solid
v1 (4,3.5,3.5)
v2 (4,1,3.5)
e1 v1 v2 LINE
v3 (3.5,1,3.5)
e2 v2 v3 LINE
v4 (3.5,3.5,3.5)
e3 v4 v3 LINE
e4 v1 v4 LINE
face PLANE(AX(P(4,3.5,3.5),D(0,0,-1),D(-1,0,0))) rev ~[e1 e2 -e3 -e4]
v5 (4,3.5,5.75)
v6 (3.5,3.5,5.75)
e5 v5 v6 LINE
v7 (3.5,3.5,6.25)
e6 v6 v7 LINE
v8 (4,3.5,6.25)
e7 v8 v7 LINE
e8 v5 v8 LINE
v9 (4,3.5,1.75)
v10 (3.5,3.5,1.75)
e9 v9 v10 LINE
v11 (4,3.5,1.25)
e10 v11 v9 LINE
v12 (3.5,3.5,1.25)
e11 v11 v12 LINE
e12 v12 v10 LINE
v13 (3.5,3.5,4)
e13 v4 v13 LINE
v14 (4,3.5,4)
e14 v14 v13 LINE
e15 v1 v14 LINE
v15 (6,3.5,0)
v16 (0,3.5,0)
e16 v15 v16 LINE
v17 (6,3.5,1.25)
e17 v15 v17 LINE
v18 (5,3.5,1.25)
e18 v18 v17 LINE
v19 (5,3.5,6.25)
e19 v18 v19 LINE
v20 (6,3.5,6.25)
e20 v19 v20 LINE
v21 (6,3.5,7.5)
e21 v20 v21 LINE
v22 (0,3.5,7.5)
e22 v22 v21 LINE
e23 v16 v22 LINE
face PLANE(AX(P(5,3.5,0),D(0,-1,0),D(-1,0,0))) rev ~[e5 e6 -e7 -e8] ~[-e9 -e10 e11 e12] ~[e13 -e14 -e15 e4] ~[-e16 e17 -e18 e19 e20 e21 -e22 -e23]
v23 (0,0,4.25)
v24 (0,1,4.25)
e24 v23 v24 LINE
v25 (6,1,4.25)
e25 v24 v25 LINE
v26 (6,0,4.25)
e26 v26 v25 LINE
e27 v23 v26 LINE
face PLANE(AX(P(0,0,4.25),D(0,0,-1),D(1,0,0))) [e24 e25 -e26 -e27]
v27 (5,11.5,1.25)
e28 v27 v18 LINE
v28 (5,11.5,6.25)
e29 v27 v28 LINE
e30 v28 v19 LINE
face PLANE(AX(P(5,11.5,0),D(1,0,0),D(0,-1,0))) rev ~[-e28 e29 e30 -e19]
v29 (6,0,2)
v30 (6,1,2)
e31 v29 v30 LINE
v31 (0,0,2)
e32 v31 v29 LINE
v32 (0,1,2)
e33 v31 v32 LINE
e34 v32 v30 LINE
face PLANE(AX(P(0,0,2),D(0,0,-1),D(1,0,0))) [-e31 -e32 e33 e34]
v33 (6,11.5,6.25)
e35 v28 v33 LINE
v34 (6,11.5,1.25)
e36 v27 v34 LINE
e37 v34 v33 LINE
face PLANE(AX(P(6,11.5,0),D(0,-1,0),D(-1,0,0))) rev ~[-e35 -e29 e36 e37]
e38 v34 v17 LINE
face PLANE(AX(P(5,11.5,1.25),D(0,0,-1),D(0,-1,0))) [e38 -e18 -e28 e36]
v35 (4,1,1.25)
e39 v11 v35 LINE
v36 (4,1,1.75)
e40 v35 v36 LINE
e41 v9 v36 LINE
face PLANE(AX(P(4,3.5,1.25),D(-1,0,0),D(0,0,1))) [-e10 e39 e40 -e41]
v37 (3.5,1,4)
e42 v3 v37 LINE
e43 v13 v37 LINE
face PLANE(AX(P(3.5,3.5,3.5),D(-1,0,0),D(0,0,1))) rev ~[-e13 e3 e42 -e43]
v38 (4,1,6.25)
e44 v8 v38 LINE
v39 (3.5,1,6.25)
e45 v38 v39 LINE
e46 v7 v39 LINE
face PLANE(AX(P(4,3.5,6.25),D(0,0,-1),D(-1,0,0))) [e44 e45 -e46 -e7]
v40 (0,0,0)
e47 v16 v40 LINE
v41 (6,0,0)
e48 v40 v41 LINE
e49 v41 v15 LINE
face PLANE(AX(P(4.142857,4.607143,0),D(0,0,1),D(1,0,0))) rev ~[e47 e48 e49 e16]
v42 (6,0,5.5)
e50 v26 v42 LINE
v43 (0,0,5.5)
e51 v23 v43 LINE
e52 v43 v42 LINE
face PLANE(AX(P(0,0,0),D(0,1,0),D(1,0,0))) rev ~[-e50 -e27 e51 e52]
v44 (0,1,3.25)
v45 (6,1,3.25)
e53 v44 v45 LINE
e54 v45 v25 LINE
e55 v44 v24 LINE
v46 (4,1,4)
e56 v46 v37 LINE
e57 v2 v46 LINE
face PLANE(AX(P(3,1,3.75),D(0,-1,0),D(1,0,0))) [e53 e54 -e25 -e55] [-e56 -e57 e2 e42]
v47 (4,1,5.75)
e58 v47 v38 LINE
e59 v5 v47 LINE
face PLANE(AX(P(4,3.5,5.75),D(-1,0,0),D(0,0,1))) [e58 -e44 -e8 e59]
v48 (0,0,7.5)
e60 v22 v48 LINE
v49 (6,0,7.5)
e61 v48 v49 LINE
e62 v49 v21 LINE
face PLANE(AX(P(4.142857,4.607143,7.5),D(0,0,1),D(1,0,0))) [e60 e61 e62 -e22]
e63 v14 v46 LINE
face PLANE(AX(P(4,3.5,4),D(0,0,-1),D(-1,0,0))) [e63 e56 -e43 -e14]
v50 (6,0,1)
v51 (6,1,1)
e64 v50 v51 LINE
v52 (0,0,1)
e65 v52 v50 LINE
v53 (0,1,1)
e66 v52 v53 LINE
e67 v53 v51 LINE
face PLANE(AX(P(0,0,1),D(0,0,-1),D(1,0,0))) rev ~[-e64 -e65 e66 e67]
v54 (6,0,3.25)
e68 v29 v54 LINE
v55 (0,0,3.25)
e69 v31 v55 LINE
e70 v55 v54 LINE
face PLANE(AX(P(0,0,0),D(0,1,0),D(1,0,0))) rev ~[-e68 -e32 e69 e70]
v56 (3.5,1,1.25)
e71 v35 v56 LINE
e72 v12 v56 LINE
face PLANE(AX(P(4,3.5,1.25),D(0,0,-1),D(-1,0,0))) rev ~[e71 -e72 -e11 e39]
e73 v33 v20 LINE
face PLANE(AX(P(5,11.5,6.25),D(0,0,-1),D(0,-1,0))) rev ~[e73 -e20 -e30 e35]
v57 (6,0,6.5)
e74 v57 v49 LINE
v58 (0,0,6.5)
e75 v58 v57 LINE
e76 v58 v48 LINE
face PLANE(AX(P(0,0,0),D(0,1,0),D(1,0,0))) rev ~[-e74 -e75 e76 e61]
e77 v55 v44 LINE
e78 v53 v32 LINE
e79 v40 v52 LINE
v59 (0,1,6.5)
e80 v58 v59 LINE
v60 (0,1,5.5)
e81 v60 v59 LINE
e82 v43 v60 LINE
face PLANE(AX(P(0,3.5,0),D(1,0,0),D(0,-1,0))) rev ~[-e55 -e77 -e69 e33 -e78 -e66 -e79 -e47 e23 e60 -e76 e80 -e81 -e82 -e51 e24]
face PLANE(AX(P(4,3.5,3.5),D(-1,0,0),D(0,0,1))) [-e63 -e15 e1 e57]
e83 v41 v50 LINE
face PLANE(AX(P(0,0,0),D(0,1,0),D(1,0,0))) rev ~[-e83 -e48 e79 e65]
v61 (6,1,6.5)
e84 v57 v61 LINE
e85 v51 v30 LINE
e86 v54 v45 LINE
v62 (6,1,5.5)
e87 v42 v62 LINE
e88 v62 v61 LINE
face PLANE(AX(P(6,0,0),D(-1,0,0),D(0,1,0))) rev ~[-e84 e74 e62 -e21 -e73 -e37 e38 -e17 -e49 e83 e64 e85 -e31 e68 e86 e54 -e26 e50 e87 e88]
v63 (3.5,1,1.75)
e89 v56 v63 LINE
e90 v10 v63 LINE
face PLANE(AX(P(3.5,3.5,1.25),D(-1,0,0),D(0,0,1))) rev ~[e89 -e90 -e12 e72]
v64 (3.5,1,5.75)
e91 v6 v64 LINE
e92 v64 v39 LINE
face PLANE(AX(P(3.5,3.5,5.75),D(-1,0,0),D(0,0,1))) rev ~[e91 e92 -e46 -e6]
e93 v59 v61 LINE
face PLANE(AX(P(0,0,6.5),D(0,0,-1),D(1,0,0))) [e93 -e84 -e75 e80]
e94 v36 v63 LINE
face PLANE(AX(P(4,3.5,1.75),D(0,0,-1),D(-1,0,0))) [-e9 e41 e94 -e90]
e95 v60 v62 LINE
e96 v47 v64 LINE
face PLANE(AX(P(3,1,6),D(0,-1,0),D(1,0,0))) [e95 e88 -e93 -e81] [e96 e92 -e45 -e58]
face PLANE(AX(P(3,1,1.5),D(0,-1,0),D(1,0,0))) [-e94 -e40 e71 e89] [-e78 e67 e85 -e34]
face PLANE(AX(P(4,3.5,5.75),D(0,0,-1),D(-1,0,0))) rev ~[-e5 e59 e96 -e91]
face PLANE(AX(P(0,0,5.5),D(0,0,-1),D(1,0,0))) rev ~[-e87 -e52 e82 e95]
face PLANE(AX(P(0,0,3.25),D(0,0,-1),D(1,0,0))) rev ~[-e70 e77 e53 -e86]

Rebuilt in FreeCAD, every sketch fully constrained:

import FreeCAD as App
import Part
import Sketcher

V = App.Vector


def add_polygon(sketch, points):
    """Adds a closed chain of lines whose ends are joined by coincident constraints."""
    first, n = sketch.GeometryCount, len(points)
    for a, b in zip(points, points[1:] + points[:1]):
        sketch.addGeometry(Part.LineSegment(App.Vector(*a, 0), App.Vector(*b, 0)), False)
    for i in range(n):
        sketch.addConstraint(Sketcher.Constraint("Coincident", first + i, 2, first + (i + 1) % n, 1))

doc = App.newDocument("Part")
params = doc.addObject("Spreadsheet::Sheet", "Params")
for row, (alias, value) in enumerate([
    ("sketch1_width", "6 mm"),
    ("sketch1_width2", "1 mm"),
    ("sketch1_height", "8 mm"),
    ("sketch1_height2", "3.5 mm"),
    ("pad1_length", "7.5 mm"),
    ("sketch2_width", "8 mm"),
    ("sketch2_height", "1.25 mm"),
    ("pocket1_length", "25 mm"),
    ("sketch3_width", "0.5 mm"),
    ("pocket2_length", "25 mm"),
    ("sketch4_width", "6 mm"),
    ("sketch4_height", "1 mm"),
    ("pocket3_length", "1 mm"),
], start=1):
    params.set(f"A{row}", alias)
    params.set(f"B{row}", "=" + value)
    params.setAlias(f"B{row}", alias)

body = doc.addObject("PartDesign::Body", "Body")

sketch1 = doc.addObject("Sketcher::SketchObject", "Sketch")
body.addObject(sketch1)
sketch1.AttachmentSupport = (doc.XY_Plane, [""])
sketch1.MapMode = "FlatFace"
add_polygon(sketch1, [(0, 3.5), (0, 0), (6, 0), (6, 11.5), (5, 11.5), (5, 3.5)])
sketch1.addConstraint(Sketcher.Constraint("Vertical", 0))
sketch1.addConstraint(Sketcher.Constraint("Horizontal", 1))
sketch1.addConstraint(Sketcher.Constraint("Vertical", 2))
sketch1.addConstraint(Sketcher.Constraint("Horizontal", 3))
sketch1.addConstraint(Sketcher.Constraint("Vertical", 4))
sketch1.addConstraint(Sketcher.Constraint("Horizontal", 5))
sketch1.addConstraint(Sketcher.Constraint("Coincident", 0, 2, -1, 1))
sketch1.addConstraint(Sketcher.Constraint("DistanceX", 1, 1, 1, 2, 6.0))
sketch1.addConstraint(Sketcher.Constraint("DistanceX", 3, 2, 3, 1, 1.0))
sketch1.addConstraint(Sketcher.Constraint("DistanceY", 4, 2, 4, 1, 8.0))
sketch1.addConstraint(Sketcher.Constraint("DistanceY", 0, 2, 0, 1, 3.5))
sketch1.setExpression("Constraints[13]", "Params.sketch1_width")
sketch1.setExpression("Constraints[14]", "Params.sketch1_width2")
sketch1.setExpression("Constraints[15]", "Params.sketch1_height")
sketch1.setExpression("Constraints[16]", "Params.sketch1_height2")
pad1 = doc.addObject("PartDesign::Pad", "Pad")
body.addObject(pad1)
pad1.Profile = sketch1
pad1.setExpression("Length", "Params.pad1_length")

sketch2 = doc.addObject("Sketcher::SketchObject", "Sketch001")
body.addObject(sketch2)
sketch2.AttachmentSupport = (doc.YZ_Plane, [""])
sketch2.MapMode = "FlatFace"
sketch2.AttachmentOffset = App.Placement(V(0, 0, 5), App.Rotation())
add_polygon(sketch2, [(11.5, 1.2), (11.5, 0), (3.5, 0), (3.5, 1.2)])
add_polygon(sketch2, [(11.5, 7.5), (11.5, 6.2), (3.5, 6.2), (3.5, 7.5)])
sketch2.addConstraint(Sketcher.Constraint("Vertical", 0))
sketch2.addConstraint(Sketcher.Constraint("Horizontal", 1))
sketch2.addConstraint(Sketcher.Constraint("Vertical", 2))
sketch2.addConstraint(Sketcher.Constraint("Horizontal", 3))
sketch2.addConstraint(Sketcher.Constraint("Vertical", 4))
sketch2.addConstraint(Sketcher.Constraint("Horizontal", 5))
sketch2.addConstraint(Sketcher.Constraint("Vertical", 6))
sketch2.addConstraint(Sketcher.Constraint("Horizontal", 7))
sketch2.addConstraint(Sketcher.Constraint("PointOnObject", 0, 2, -1))
sketch2.addConstraint(Sketcher.Constraint("Vertical", 3, 2, 4, 2))
sketch2.addConstraint(Sketcher.Constraint("Vertical", 2, 2, 5, 2))
sketch2.addConstraint(Sketcher.Constraint("Equal", 2, 4))
sketch2.addConstraint(Sketcher.Constraint("DistanceX", 1, 2, 1, 1, 8.0))
sketch2.addConstraint(Sketcher.Constraint("DistanceY", 3, 2, 4, 2, 5.0))
sketch2.addConstraint(Sketcher.Constraint("DistanceY", 0, 2, 0, 1, 1.25))
sketch2.addConstraint(Sketcher.Constraint("DistanceX", -1, 1, 0, 2, 11.5))
sketch2.setExpression("Constraints[20]", "Params.sketch2_width")
sketch2.setExpression("Constraints[22]", "Params.sketch2_height")
pocket1 = doc.addObject("PartDesign::Pocket", "Pocket")
body.addObject(pocket1)
pocket1.Profile = sketch2
pocket1.setExpression("Length", "Params.pocket1_length")
pocket1.Reversed = True

sketch3 = doc.addObject("Sketcher::SketchObject", "Sketch002")
body.addObject(sketch3)
sketch3.AttachmentSupport = (doc.XZ_Plane, [""])
sketch3.MapMode = "FlatFace"
sketch3.AttachmentOffset = App.Placement(V(0, 0, -3.5), App.Rotation())
add_polygon(sketch3, [(4, 6.2), (4, 5.8), (3.5, 5.8), (3.5, 6.2)])
add_polygon(sketch3, [(4, 1.8), (4, 1.2), (3.5, 1.2), (3.5, 1.8)])
add_polygon(sketch3, [(4, 4), (4, 3.5), (3.5, 3.5), (3.5, 4)])
sketch3.addConstraint(Sketcher.Constraint("Vertical", 0))
sketch3.addConstraint(Sketcher.Constraint("Horizontal", 1))
sketch3.addConstraint(Sketcher.Constraint("Vertical", 2))
sketch3.addConstraint(Sketcher.Constraint("Horizontal", 3))
sketch3.addConstraint(Sketcher.Constraint("Vertical", 4))
sketch3.addConstraint(Sketcher.Constraint("Horizontal", 5))
sketch3.addConstraint(Sketcher.Constraint("Vertical", 6))
sketch3.addConstraint(Sketcher.Constraint("Horizontal", 7))
sketch3.addConstraint(Sketcher.Constraint("Vertical", 8))
sketch3.addConstraint(Sketcher.Constraint("Horizontal", 9))
sketch3.addConstraint(Sketcher.Constraint("Vertical", 10))
sketch3.addConstraint(Sketcher.Constraint("Horizontal", 11))
sketch3.addConstraint(Sketcher.Constraint("Vertical", 3, 2, 4, 2))
sketch3.addConstraint(Sketcher.Constraint("Vertical", 2, 2, 5, 2))
sketch3.addConstraint(Sketcher.Constraint("Vertical", 7, 2, 8, 2))
sketch3.addConstraint(Sketcher.Constraint("Vertical", 6, 2, 9, 2))
sketch3.addConstraint(Sketcher.Constraint("Equal", 11, 0))
sketch3.addConstraint(Sketcher.Constraint("Equal", 2, 4))
sketch3.addConstraint(Sketcher.Constraint("Equal", 6, 8))
sketch3.addConstraint(Sketcher.Constraint("DistanceX", 1, 2, 1, 1, 0.5))
sketch3.addConstraint(Sketcher.Constraint("DistanceX", -1, 1, 0, 2, 4.0))
sketch3.addConstraint(Sketcher.Constraint("DistanceY", -1, 1, 10, 2, 4.0))
sketch3.addConstraint(Sketcher.Constraint("DistanceY", 4, 2, 3, 2, 5.0))
sketch3.addConstraint(Sketcher.Constraint("DistanceY", -1, 1, 0, 2, 5.75))
sketch3.setExpression("Constraints[31]", "Params.sketch3_width")
pocket2 = doc.addObject("PartDesign::Pocket", "Pocket001")
body.addObject(pocket2)
pocket2.Profile = sketch3
pocket2.setExpression("Length", "Params.pocket2_length")
pocket2.Reversed = True

sketch4 = doc.addObject("Sketcher::SketchObject", "Sketch003")
body.addObject(sketch4)
sketch4.AttachmentSupport = (doc.XZ_Plane, [""])
sketch4.MapMode = "FlatFace"
add_polygon(sketch4, [(0, 6.5), (0, 5.5), (6, 5.5), (6, 6.5)])
add_polygon(sketch4, [(0, 4.2), (0, 3.2), (6, 3.2), (6, 4.2)])
add_polygon(sketch4, [(0, 2), (0, 1), (6, 1), (6, 2)])
sketch4.addConstraint(Sketcher.Constraint("Vertical", 0))
sketch4.addConstraint(Sketcher.Constraint("Horizontal", 1))
sketch4.addConstraint(Sketcher.Constraint("Vertical", 2))
sketch4.addConstraint(Sketcher.Constraint("Horizontal", 3))
sketch4.addConstraint(Sketcher.Constraint("Vertical", 4))
sketch4.addConstraint(Sketcher.Constraint("Horizontal", 5))
sketch4.addConstraint(Sketcher.Constraint("Vertical", 6))
sketch4.addConstraint(Sketcher.Constraint("Horizontal", 7))
sketch4.addConstraint(Sketcher.Constraint("Vertical", 8))
sketch4.addConstraint(Sketcher.Constraint("Horizontal", 9))
sketch4.addConstraint(Sketcher.Constraint("Vertical", 10))
sketch4.addConstraint(Sketcher.Constraint("Horizontal", 11))
sketch4.addConstraint(Sketcher.Constraint("PointOnObject", 0, 2, -2))
sketch4.addConstraint(Sketcher.Constraint("PointOnObject", 4, 2, -2))
sketch4.addConstraint(Sketcher.Constraint("PointOnObject", 8, 2, -2))
sketch4.addConstraint(Sketcher.Constraint("Vertical", 2, 2, 5, 2))
sketch4.addConstraint(Sketcher.Constraint("Vertical", 6, 2, 9, 2))
sketch4.addConstraint(Sketcher.Constraint("Equal", 2, 4))
sketch4.addConstraint(Sketcher.Constraint("Equal", 6, 8))
sketch4.addConstraint(Sketcher.Constraint("DistanceX", 1, 1, 1, 2, 6.0))
sketch4.addConstraint(Sketcher.Constraint("DistanceY", 0, 2, 0, 1, 1.0))
sketch4.addConstraint(Sketcher.Constraint("DistanceY", -1, 1, 8, 2, 1.0))
sketch4.addConstraint(Sketcher.Constraint("DistanceY", -1, 1, 0, 2, 5.5))
sketch4.addConstraint(Sketcher.Constraint("DistanceY", -1, 1, 4, 2, 3.25))
sketch4.setExpression("Constraints[31]", "Params.sketch4_width")
sketch4.setExpression("Constraints[32]", "Params.sketch4_height")
pocket3 = doc.addObject("PartDesign::Pocket", "Pocket002")
body.addObject(pocket3)
pocket3.Profile = sketch4
pocket3.setExpression("Length", "Params.pocket3_length")

doc.recompute()
